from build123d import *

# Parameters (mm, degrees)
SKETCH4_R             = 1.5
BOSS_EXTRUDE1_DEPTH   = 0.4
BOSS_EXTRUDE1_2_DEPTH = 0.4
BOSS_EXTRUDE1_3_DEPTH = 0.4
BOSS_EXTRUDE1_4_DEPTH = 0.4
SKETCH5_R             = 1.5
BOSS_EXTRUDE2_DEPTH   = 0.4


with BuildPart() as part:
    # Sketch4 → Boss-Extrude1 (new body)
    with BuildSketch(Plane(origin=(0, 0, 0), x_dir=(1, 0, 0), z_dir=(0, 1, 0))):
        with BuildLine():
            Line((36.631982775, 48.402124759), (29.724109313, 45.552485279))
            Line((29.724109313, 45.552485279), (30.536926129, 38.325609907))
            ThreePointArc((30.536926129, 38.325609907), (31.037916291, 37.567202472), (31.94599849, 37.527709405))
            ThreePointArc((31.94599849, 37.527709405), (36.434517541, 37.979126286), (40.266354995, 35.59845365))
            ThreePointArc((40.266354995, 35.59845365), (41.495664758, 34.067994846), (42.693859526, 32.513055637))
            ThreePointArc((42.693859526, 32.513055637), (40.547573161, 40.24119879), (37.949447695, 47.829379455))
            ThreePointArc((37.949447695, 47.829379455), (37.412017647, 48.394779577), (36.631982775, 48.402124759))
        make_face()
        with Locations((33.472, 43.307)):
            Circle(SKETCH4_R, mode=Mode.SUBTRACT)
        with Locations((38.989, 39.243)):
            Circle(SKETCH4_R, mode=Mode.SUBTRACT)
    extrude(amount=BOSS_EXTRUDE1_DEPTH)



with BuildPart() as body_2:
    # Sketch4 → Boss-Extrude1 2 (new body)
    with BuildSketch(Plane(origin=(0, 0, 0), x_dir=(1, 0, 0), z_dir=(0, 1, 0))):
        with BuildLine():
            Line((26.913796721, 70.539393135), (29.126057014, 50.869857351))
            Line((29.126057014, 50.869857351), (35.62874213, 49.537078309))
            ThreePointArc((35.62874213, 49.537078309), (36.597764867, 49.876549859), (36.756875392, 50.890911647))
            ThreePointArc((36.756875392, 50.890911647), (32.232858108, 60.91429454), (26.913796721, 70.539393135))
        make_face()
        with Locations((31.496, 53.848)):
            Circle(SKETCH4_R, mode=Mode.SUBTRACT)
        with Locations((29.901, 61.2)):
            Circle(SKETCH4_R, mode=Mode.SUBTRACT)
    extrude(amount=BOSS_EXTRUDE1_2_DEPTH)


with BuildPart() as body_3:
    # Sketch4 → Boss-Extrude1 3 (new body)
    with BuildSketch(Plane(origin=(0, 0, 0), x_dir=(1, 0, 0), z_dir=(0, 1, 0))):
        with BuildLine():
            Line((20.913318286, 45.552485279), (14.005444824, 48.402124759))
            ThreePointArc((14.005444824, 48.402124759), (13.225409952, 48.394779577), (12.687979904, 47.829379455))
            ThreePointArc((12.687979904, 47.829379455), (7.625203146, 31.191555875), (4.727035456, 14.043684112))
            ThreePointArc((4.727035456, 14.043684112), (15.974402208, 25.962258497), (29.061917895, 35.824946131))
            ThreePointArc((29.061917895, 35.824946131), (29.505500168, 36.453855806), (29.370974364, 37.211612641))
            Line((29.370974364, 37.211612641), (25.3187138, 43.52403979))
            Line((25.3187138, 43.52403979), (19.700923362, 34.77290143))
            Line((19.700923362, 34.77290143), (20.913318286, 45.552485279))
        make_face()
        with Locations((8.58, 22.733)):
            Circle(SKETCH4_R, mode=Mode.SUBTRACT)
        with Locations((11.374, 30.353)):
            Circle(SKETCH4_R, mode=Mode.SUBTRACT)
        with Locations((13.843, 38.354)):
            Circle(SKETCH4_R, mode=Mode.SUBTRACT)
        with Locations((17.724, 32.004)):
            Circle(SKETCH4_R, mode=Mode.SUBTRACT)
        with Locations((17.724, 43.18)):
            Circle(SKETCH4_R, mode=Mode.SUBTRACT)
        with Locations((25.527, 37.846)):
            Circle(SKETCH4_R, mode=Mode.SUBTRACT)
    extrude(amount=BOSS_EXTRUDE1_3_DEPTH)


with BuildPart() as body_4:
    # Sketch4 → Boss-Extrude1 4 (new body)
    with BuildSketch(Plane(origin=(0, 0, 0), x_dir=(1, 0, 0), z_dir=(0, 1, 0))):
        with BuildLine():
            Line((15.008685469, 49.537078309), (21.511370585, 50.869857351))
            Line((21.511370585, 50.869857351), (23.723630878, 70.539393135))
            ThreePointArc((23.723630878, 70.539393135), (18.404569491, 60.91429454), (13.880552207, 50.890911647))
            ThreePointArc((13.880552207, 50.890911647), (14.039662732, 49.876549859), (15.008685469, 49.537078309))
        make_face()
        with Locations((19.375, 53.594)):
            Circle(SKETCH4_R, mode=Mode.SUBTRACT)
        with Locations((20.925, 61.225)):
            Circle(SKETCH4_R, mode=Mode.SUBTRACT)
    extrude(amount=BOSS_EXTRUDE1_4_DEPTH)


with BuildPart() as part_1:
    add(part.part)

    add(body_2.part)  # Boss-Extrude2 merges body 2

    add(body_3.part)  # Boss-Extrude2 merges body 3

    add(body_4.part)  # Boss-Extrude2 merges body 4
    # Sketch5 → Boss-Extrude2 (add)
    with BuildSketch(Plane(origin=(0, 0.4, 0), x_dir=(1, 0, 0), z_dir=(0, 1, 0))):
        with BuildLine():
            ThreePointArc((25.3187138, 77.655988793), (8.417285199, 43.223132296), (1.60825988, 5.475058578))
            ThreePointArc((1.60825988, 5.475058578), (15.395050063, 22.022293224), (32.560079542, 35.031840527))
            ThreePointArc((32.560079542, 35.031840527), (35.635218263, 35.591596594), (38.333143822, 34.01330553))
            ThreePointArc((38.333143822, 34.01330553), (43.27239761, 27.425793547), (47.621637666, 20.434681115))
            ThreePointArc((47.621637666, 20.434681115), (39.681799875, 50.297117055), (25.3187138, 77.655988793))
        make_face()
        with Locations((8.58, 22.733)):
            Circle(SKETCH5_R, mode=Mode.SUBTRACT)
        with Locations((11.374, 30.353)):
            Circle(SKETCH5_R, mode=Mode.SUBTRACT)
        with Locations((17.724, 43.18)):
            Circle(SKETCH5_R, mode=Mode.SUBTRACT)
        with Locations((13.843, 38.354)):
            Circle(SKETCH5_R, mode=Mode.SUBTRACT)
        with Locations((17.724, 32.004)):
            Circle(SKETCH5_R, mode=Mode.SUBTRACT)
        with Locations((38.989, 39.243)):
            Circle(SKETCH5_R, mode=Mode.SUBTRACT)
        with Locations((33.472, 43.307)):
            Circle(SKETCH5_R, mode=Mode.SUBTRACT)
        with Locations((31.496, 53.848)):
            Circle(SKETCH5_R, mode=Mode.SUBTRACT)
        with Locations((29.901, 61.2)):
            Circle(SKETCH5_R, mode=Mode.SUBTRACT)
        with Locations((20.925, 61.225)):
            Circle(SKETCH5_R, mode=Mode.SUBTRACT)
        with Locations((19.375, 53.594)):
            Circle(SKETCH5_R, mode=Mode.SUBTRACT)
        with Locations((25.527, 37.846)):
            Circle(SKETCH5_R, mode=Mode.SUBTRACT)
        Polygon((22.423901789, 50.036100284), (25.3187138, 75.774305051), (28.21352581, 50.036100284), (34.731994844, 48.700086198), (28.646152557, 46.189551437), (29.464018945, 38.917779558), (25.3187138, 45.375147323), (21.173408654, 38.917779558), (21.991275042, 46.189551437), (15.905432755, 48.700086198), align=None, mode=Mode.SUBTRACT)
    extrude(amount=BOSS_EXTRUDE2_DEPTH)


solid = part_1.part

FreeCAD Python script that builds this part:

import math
import FreeCAD as App
import Part
import Sketcher
from FreeCAD import Vector


def add_polygon(sketch, points):
    """Adds a closed chain of lines whose ends are joined by coincident constraints."""
    first, n = sketch.GeometryCount, len(points)
    for a, b in zip(points, points[1:] + points[:1]):
        sketch.addGeometry(Part.LineSegment(App.Vector(*a, 0), App.Vector(*b, 0)), False)
    for i in range(n):
        sketch.addConstraint(Sketcher.Constraint("Coincident", first + i, 2, first + (i + 1) % n, 1))

doc = App.newDocument("Part")
params = doc.addObject("Spreadsheet::Sheet", "Params")
for row, (alias, value) in enumerate([
    ("sketch1_diameter", "3 mm"),
    ("sketch1_radius", "1 mm"),
    ("sketch1_radius2", "7 mm"),
    ("sketch1_radius3", "136 mm"),
    ("pad1_length", "0.4 mm"),
    ("sketch2_diameter", "3 mm"),
    ("sketch2_radius", "1 mm"),
    ("sketch2_radius2", "136 mm"),
    ("pad2_length", "0.4 mm"),
    ("sketch3_diameter", "3 mm"),
    ("sketch3_radius", "1 mm"),
    ("sketch3_radius2", "136 mm"),
    ("pad3_length", "0.4 mm"),
    ("sketch4_diameter", "3 mm"),
    ("sketch4_radius", "136 mm"),
    ("sketch4_radius2", "1 mm"),
    ("pad4_length", "0.4 mm"),
    ("sketch5_diameter", "3 mm"),
    ("sketch5_diameter2", "3 mm"),
    ("sketch5_diameter3", "3 mm"),
    ("sketch5_diameter4", "3 mm"),
    ("sketch5_diameter5", "3 mm"),
    ("pad5_length", "0.4 mm"),
], start=1):
    params.set(f"A{row}", alias)
    params.set(f"B{row}", "=" + value)
    params.setAlias(f"B{row}", alias)

body = doc.addObject("PartDesign::Body", "Body")

sketch1 = doc.addObject("Sketcher::SketchObject", "Sketch")
body.addObject(sketch1)
sketch1.AttachmentSupport = (doc.XZ_Plane, [""])
sketch1.MapMode = "FlatFace"
sketch1.addGeometry([
    Part.LineSegment(Vector(36.631983, -48.402125, 0), Vector(29.724109, -45.552485, 0)),
    Part.LineSegment(Vector(29.724109, -45.552485, 0), Vector(30.536926, -38.32561, 0)),
    Part.ArcOfCircle(Part.Circle(Vector(31.530661, -38.437377, 0), Vector(0, 0, 1), 1), math.radians(65.459403), math.radians(173.582831)),
    Part.ArcOfCircle(Part.Circle(Vector(34.853364, -31.160039, 0), Vector(0, 0, 1), 7), math.radians(-114.540597), math.radians(-39.350245)),
    Part.ArcOfCircle(Part.Circle(Vector(-35, 26.116647, 0), Vector(0, 0, 1), 97.333334), math.radians(-39.350246), math.radians(-37.039104)),
    Part.ArcOfCircle(Part.Circle(Vector(-89.362573, 0, 0), Vector(0, 0, 1), 136), math.radians(-20.590511), math.radians(-13.831456)),
    Part.ArcOfCircle(Part.Circle(Vector(37.01333, -47.477693, 0), Vector(0, 0, 1), 1), math.radians(-112.417152), math.radians(-20.590511)),
    Part.Circle(Vector(38.989, -39.243, 0), Vector(0, 0, 1), 1.5),
    Part.Circle(Vector(33.472, -43.307, 0), Vector(0, 0, 1), 1.5),
], False)
sketch1.addConstraint([
    Sketcher.Constraint("Coincident", 0, 2, 1, 1),
    Sketcher.Constraint("Tangent", 1, 2, 2, 2),
    Sketcher.Constraint("Tangent", 2, 1, 3, 1),
    Sketcher.Constraint("Tangent", 3, 2, 4, 1),
    Sketcher.Constraint("Coincident", 4, 2, 5, 2),
    Sketcher.Constraint("Tangent", 5, 1, 6, 2),
    Sketcher.Constraint("Tangent", 6, 1, 0, 1),
    Sketcher.Constraint("Equal", 2, 6),
    Sketcher.Constraint("Equal", 7, 8),
    Sketcher.Constraint("PointOnObject", 5, 3, -1),
    Sketcher.Constraint("Diameter", 7, 3.0),
    Sketcher.Constraint("Radius", 2, 1.0),
    Sketcher.Constraint("Radius", 3, 7.0),
    Sketcher.Constraint("Radius", 5, 136.0),
    Sketcher.Constraint("DistanceX", 4, 3, -1, 1, 35.0),
    Sketcher.Constraint("DistanceX", -1, 1, 7, 3, 38.989),
    Sketcher.Constraint("DistanceY", 7, 3, -1, 1, 39.243),
    Sketcher.Constraint("DistanceX", -1, 1, 8, 3, 33.472),
    Sketcher.Constraint("DistanceY", 8, 3, -1, 1, 43.307),
    Sketcher.Constraint("DistanceX", -1, 1, 2, 1, 31.945998),
    Sketcher.Constraint("Radius", 4, 97.333334),
    Sketcher.Constraint("DistanceY", 1, 2, 2, 1, 0.797901),
    Sketcher.Constraint("DistanceY", 3, 2, 4, 2, 3.085398),
    Sketcher.Constraint("DistanceX", 2, 3, 4, 2, 11.163199),
    Sketcher.Constraint("Distance", 0, 7.472561),
    Sketcher.Constraint("Distance", 1, 7.272441),
    Sketcher.Constraint("DistanceY", 3, 3, -1, 1, 31.160039),
])
sketch1.setExpression("Constraints[10]", "Params.sketch1_diameter")
sketch1.setExpression("Constraints[11]", "Params.sketch1_radius")
sketch1.setExpression("Constraints[12]", "Params.sketch1_radius2")
sketch1.setExpression("Constraints[13]", "Params.sketch1_radius3")
pad1 = doc.addObject("PartDesign::Pad", "Pad")
body.addObject(pad1)
pad1.Profile = sketch1
pad1.setExpression("Length", "Params.pad1_length")
pad1.Reversed = True
body2 = doc.addObject("PartDesign::Body", "Body001")

sketch2 = doc.addObject("Sketcher::SketchObject", "Sketch001")
body2.addObject(sketch2)
sketch2.AttachmentSupport = (doc.getObject("XZ_Plane001"), [""])
sketch2.MapMode = "FlatFace"
sketch2.addGeometry([
    Part.LineSegment(Vector(26.9, -70.5, 0), Vector(29.1, -50.9, 0)),
    Part.LineSegment(Vector(29.1, -50.9, 0), Vector(35.6, -49.5, 0)),
    Part.ArcOfCircle(Part.Circle(Vector(35.8, -50.5, 0), Vector(0, 0, 1), 1), math.radians(-22), math.radians(102)),
    Part.ArcOfCircle(Part.Circle(Vector(-89.4, 0, 0), Vector(0, 0, 1), 136), math.radians(-31.24), math.radians(-21.97)),
    Part.Circle(Vector(31.5, -53.8, 0), Vector(0, 0, 1), 1.5),
    Part.Circle(Vector(29.9, -61.2, 0), Vector(0, 0, 1), 1.5),
], False)
sketch2.addConstraint([
    Sketcher.Constraint("Coincident", 0, 2, 1, 1),
    Sketcher.Constraint("Tangent", 1, 2, 2, 2),
    Sketcher.Constraint("Tangent", 2, 1, 3, 2),
    Sketcher.Constraint("Coincident", 3, 1, 0, 1),
    Sketcher.Constraint("Equal", 4, 5),
    Sketcher.Constraint("PointOnObject", 3, 3, -1),
    Sketcher.Constraint("Diameter", 4, 3.0),
    Sketcher.Constraint("Radius", 2, 1.0),
    Sketcher.Constraint("Radius", 3, 136.0),
    Sketcher.Constraint("DistanceY", 5, 3, -1, 1, 61.2),
    Sketcher.Constraint("DistanceX", -1, 1, 4, 3, 31.496),
    Sketcher.Constraint("DistanceY", 4, 3, -1, 1, 53.848),
    Sketcher.Constraint("DistanceX", -1, 1, 5, 3, 29.901),
    Sketcher.Constraint("DistanceX", 3, 3, 2, 3, 125.192099),
    Sketcher.Constraint("DistanceY", 1, 2, -1, 1, 49.537078),
    Sketcher.Constraint("DistanceX", 0, 2, 2, 3, 6.703469),
    Sketcher.Constraint("DistanceX", 3, 1, 0, 2, 2.21226),
    Sketcher.Constraint("DistanceX", -1, 1, 2, 3, 35.829527),
])
sketch2.setExpression("Constraints[6]", "Params.sketch2_diameter")
sketch2.setExpression("Constraints[7]", "Params.sketch2_radius")
sketch2.setExpression("Constraints[8]", "Params.sketch2_radius2")
pad2 = doc.addObject("PartDesign::Pad", "Pad001")
body2.addObject(pad2)
pad2.Profile = sketch2
pad2.setExpression("Length", "Params.pad2_length")
pad2.Reversed = True
body3 = doc.addObject("PartDesign::Body", "Body002")

sketch3 = doc.addObject("Sketcher::SketchObject", "Sketch002")
body3.addObject(sketch3)
sketch3.AttachmentSupport = (doc.getObject("XZ_Plane002"), [""])
sketch3.MapMode = "FlatFace"
sketch3.addGeometry([
    Part.LineSegment(Vector(20.9, -45.6, 0), Vector(14, -48.4, 0)),
    Part.ArcOfCircle(Part.Circle(Vector(13.6, -47.5, 0), Vector(0, 0, 1), 1), math.radians(-159), math.radians(-68)),
    Part.ArcOfCircle(Part.Circle(Vector(140, 0, 0), Vector(0, 0, 1), 136), math.radians(-174.07), math.radians(-159.41)),
    Part.ArcOfCircle(Part.Circle(Vector(80.9, 46.6, 0), Vector(0, 0, 1), 97.3), math.radians(-141.49), math.radians(-122.17)),
    Part.ArcOfCircle(Part.Circle(Vector(28.5, -36.7, 0), Vector(0, 0, 1), 1), math.radians(-33), math.radians(58)),
    Part.LineSegment(Vector(29.4, -37.2, 0), Vector(25.3, -43.5, 0)),
    Part.LineSegment(Vector(25.3, -43.5, 0), Vector(19.7, -34.8, 0)),
    Part.LineSegment(Vector(19.7, -34.8, 0), Vector(20.9, -45.6, 0)),
    Part.Circle(Vector(8.6, -22.7, 0), Vector(0, 0, 1), 1.5),
    Part.Circle(Vector(11.4, -30.4, 0), Vector(0, 0, 1), 1.5),
    Part.Circle(Vector(17.7, -32, 0), Vector(0, 0, 1), 1.5),
    Part.Circle(Vector(13.8, -38.4, 0), Vector(0, 0, 1), 1.5),
    Part.Circle(Vector(25.5, -37.8, 0), Vector(0, 0, 1), 1.5),
    Part.Circle(Vector(17.7, -43.2, 0), Vector(0, 0, 1), 1.5),
], False)
sketch3.addConstraint([
    Sketcher.Constraint("Tangent", 0, 2, 1, 2),
    Sketcher.Constraint("Tangent", 1, 1, 2, 2),
    Sketcher.Constraint("Coincident", 2, 1, 3, 1),
    Sketcher.Constraint("Tangent", 3, 2, 4, 2),
    Sketcher.Constraint("Tangent", 4, 1, 5, 1),
    Sketcher.Constraint("Coincident", 5, 2, 6, 1),
    Sketcher.Constraint("Coincident", 6, 2, 7, 1),
    Sketcher.Constraint("Coincident", 7, 2, 0, 1),
    Sketcher.Constraint("Equal", 1, 4),
    Sketcher.Constraint("Equal", 8, 9),
    Sketcher.Constraint("Equal", 9, 10),
    Sketcher.Constraint("Equal", 10, 11),
    Sketcher.Constraint("Equal", 11, 12),
    Sketcher.Constraint("Equal", 12, 13),
    Sketcher.Constraint("PointOnObject", 2, 3, -1),
    Sketcher.Constraint("Vertical", 10, 3, 13, 3),
    Sketcher.Constraint("Diameter", 8, 3.0),
    Sketcher.Constraint("Radius", 1, 1.0),
    Sketcher.Constraint("Radius", 2, 136.0),
    Sketcher.Constraint("DistanceX", -1, 1, 2, 3, 140.0),
    Sketcher.Constraint("DistanceX", -1, 1, 8, 3, 8.58),
    Sketcher.Constraint("DistanceY", 13, 3, -1, 1, 43.18),
    Sketcher.Constraint("DistanceY", 9, 3, 8, 3, 7.62),
    Sketcher.Constraint("DistanceX", 9, 3, 10, 3, 6.35),
    Sketcher.Constraint("DistanceY", 11, 3, 10, 3, 6.35),
    Sketcher.Constraint("DistanceY", 8, 3, -1, 1, 22.733),
    Sketcher.Constraint("DistanceX", -1, 1, 9, 3, 11.374),
    Sketcher.Constraint("DistanceY", 10, 3, -1, 1, 32.004),
    Sketcher.Constraint("DistanceX", -1, 1, 11, 3, 13.843),
    Sketcher.Constraint("DistanceX", -1, 1, 12, 3, 25.527),
    Sketcher.Constraint("DistanceY", 12, 3, -1, 1, 37.846),
    Sketcher.Constraint("Radius", 3, 97.333333),
    Sketcher.Constraint("DistanceY", 6, 2, -1, 1, 34.772901),
    Sketcher.Constraint("Distance", 0, 7.472561),
    Sketcher.Constraint("Distance", 5, 7.50117),
    Sketcher.Constraint("Distance", 7, 10.847549),
    Sketcher.Constraint("DistanceX", -1, 1, 3, 3, 80.88892),
    Sketcher.Constraint("DistanceX", -1, 1, 4, 3, 28.529449),
    Sketcher.Constraint("DistanceX", -1, 1, 1, 1, 12.68798),
    Sketcher.Constraint("DistanceY", 5, 2, -1, 1, 43.52404),
    Sketcher.Constraint("DistanceX", -1, 1, 7, 2, 20.913318),
    Sketcher.Constraint("DistanceX", 5, 2, 4, 1, 4.052261),
])
sketch3.setExpression("Constraints[16]", "Params.sketch3_diameter")
sketch3.setExpression("Constraints[17]", "Params.sketch3_radius")
sketch3.setExpression("Constraints[18]", "Params.sketch3_radius2")
pad3 = doc.addObject("PartDesign::Pad", "Pad002")
body3.addObject(pad3)
pad3.Profile = sketch3
pad3.setExpression("Length", "Params.pad3_length")
pad3.Reversed = True
body4 = doc.addObject("PartDesign::Body", "Body003")

sketch4 = doc.addObject("Sketcher::SketchObject", "Sketch003")
body4.addObject(sketch4)
sketch4.AttachmentSupport = (doc.getObject("XZ_Plane003"), [""])
sketch4.MapMode = "FlatFace"
sketch4.addGeometry([
    Part.LineSegment(Vector(15, -49.5, 0), Vector(21.5, -50.9, 0)),
    Part.LineSegment(Vector(21.5, -50.9, 0), Vector(23.7, -70.5, 0)),
    Part.ArcOfCircle(Part.Circle(Vector(140, 0, 0), Vector(0, 0, 1), 136), math.radians(-158.03), math.radians(-148.76)),
    Part.ArcOfCircle(Part.Circle(Vector(14.8, -50.5, 0), Vector(0, 0, 1), 1), math.radians(78), math.radians(202)),
    Part.Circle(Vector(19.4, -53.6, 0), Vector(0, 0, 1), 1.5),
    Part.Circle(Vector(20.9, -61.2, 0), Vector(0, 0, 1), 1.5),
], False)
sketch4.addConstraint([
    Sketcher.Constraint("Coincident", 0, 2, 1, 1),
    Sketcher.Constraint("Coincident", 1, 2, 2, 2),
    Sketcher.Constraint("Tangent", 2, 1, 3, 2),
    Sketcher.Constraint("Tangent", 3, 1, 0, 1),
    Sketcher.Constraint("Equal", 4, 5),
    Sketcher.Constraint("PointOnObject", 2, 3, -1),
    Sketcher.Constraint("Diameter", 4, 3.0),
    Sketcher.Constraint("Radius", 2, 136.0),
    Sketcher.Constraint("Radius", 3, 1.0),
    Sketcher.Constraint("DistanceX", -1, 1, 2, 3, 140.0),
    Sketcher.Constraint("DistanceX", 4, 3, 5, 3, 1.55),
    Sketcher.Constraint("DistanceX", -1, 1, 4, 3, 19.375),
    Sketcher.Constraint("DistanceY", 4, 3, -1, 1, 53.594),
    Sketcher.Constraint("DistanceY", 5, 3, -1, 1, 61.225),
    Sketcher.Constraint("DistanceX", -1, 1, 3, 3, 14.807901),
    Sketcher.Constraint("DistanceX", -1, 1, 0, 2, 21.511371),
    Sketcher.Constraint("DistanceX", -1, 1, 1, 2, 23.723631),
    Sketcher.Constraint("DistanceY", 3, 1, -1, 1, 49.537078),
])
sketch4.setExpression("Constraints[6]", "Params.sketch4_diameter")
sketch4.setExpression("Constraints[7]", "Params.sketch4_radius")
sketch4.setExpression("Constraints[8]", "Params.sketch4_radius2")
pad4 = doc.addObject("PartDesign::Pad", "Pad003")
body4.addObject(pad4)
pad4.Profile = sketch4
pad4.setExpression("Length", "Params.pad4_length")
pad4.Reversed = True
body.AllowCompound = True
doc.recompute()

boolean = doc.addObject("PartDesign::Boolean", "Boolean")
body.addObject(boolean)
boolean.Type = "Fuse"
boolean.addObjects([body2])
doc.recompute()

boolean2 = doc.addObject("PartDesign::Boolean", "Boolean001")
body.addObject(boolean2)
boolean2.Type = "Fuse"
boolean2.addObjects([body3])
doc.recompute()

boolean3 = doc.addObject("PartDesign::Boolean", "Boolean002")
body.addObject(boolean3)
boolean3.Type = "Fuse"
boolean3.addObjects([body4])

sketch5 = doc.addObject("Sketcher::SketchObject", "Sketch004")
body.addObject(sketch5)
sketch5.AttachmentSupport = (doc.XZ_Plane, [""])
sketch5.MapMode = "FlatFace"
sketch5.AttachmentOffset = App.Placement(Vector(0, 0, -0.4), App.Rotation())
sketch5.addGeometry(Part.ArcOfCircle(Part.Circle(Vector(140, 0, 0), Vector(0, 0, 1), 138.5), math.radians(-177.734444), math.radians(-145.896259)), False)
sketch5.addGeometry(Part.ArcOfCircle(Part.Circle(Vector(80.88892, 46.562793, 0), Vector(0, 0, 1), 94.833333), math.radians(-146.720102), math.radians(-120.638435)), False)
sketch5.addGeometry(Part.ArcOfCircle(Part.Circle(Vector(34.853364, -31.160039, 0), Vector(0, 0, 1), 4.5), math.radians(-120.638435), math.radians(-39.350245)), False)
sketch5.addGeometry(Part.ArcOfCircle(Part.Circle(Vector(-35, 26.116646, 0), Vector(0, 0, 1), 94.833333), math.radians(-39.350246), math.radians(-29.398119)), False)
sketch5.addGeometry(Part.ArcOfCircle(Part.Circle(Vector(-89.362572, 0, 0), Vector(0, 0, 1), 138.5), math.radians(-34.103741), math.radians(-8.484556)), False)
sketch5.addGeometry(Part.Circle(Vector(8.58, -22.733, 0), Vector(0, 0, 1), 1.5), False)
sketch5.addGeometry(Part.Circle(Vector(11.374, -30.353, 0), Vector(0, 0, 1), 1.5), False)
sketch5.addGeometry(Part.Circle(Vector(17.724, -32.004, 0), Vector(0, 0, 1), 1.5), False)
sketch5.addGeometry(Part.Circle(Vector(13.843, -38.354, 0), Vector(0, 0, 1), 1.5), False)
sketch5.addGeometry(Part.Circle(Vector(17.724, -43.18, 0), Vector(0, 0, 1), 1.5), False)
sketch5.addGeometry(Part.Circle(Vector(25.527, -37.846, 0), Vector(0, 0, 1), 1.5), False)
sketch5.addGeometry(Part.Circle(Vector(38.989, -39.243, 0), Vector(0, 0, 1), 1.5), False)
sketch5.addGeometry(Part.Circle(Vector(33.472, -43.307, 0), Vector(0, 0, 1), 1.5), False)
sketch5.addGeometry(Part.Circle(Vector(19.375, -53.594, 0), Vector(0, 0, 1), 1.5), False)
sketch5.addGeometry(Part.Circle(Vector(20.925, -61.225, 0), Vector(0, 0, 1), 1.5), False)
sketch5.addGeometry(Part.Circle(Vector(31.496, -53.848, 0), Vector(0, 0, 1), 1.5), False)
add_polygon(sketch5, [(15.905433, -48.700086), (22.423902, -50.0361), (25.318714, -75.774305), (28.213526, -50.0361), (34.731995, -48.700086), (28.646153, -46.189551), (29.464019, -38.91778), (25.318714, -45.375147), (21.173409, -38.91778), (21.991275, -46.189551)])
sketch5.addGeometry(Part.Circle(Vector(29.901, -61.2, 0), Vector(0, 0, 1), 1.5), False)
sketch5.addConstraint([
    Sketcher.Constraint("Coincident", 0, 1, 1, 1),
    Sketcher.Constraint("Coincident", 1, 2, 2, 1),
    Sketcher.Constraint("Coincident", 2, 2, 3, 1),
    Sketcher.Constraint("Coincident", 3, 2, 4, 2),
    Sketcher.Constraint("Coincident", 4, 1, 0, 2),
    Sketcher.Constraint("PointOnObject", 0, 3, -1),
    Sketcher.Constraint("PointOnObject", 4, 3, -1),
    Sketcher.Constraint("Diameter", 5, 3.0),
    Sketcher.Constraint("Diameter", 6, 3.0),
    Sketcher.Constraint("Diameter", 7, 3.0),
    Sketcher.Constraint("Diameter", 8, 3.0),
    Sketcher.Constraint("Diameter", 9, 3.0),
    Sketcher.Constraint("Diameter", 10, 3.0),
    Sketcher.Constraint("Diameter", 11, 3.0),
    Sketcher.Constraint("Diameter", 12, 3.0),
    Sketcher.Constraint("Diameter", 13, 3.0),
    Sketcher.Constraint("Diameter", 14, 3.0),
    Sketcher.Constraint("Diameter", 15, 3.0),
    Sketcher.Constraint("Diameter", 26, 3.0),
    Sketcher.Constraint("Radius", 0, 138.5),
    Sketcher.Constraint("Radius", 2, 4.5),
    Sketcher.Constraint("Radius", 4, 138.5),
    Sketcher.Constraint("DistanceX", -1, 1, 0, 3, 140.0),
    Sketcher.Constraint("DistanceX", 3, 3, -1, 1, 35.0),
    Sketcher.Constraint("DistanceY", 26, 3, -1, 1, 61.2),
    Sketcher.Constraint("DistanceX", -1, 1, 5, 3, 8.58),
    Sketcher.Constraint("DistanceY", 9, 3, -1, 1, 43.18),
    Sketcher.Constraint("DistanceY", 6, 3, 5, 3, 7.62),
    Sketcher.Constraint("DistanceX", 6, 3, 7, 3, 6.35),
    Sketcher.Constraint("DistanceY", 8, 3, 7, 3, 6.35),
    Sketcher.Constraint("DistanceX", 6, 3, 9, 3, 6.35),
    Sketcher.Constraint("DistanceY", 13, 3, 8, 3, 15.24),
    Sketcher.Constraint("DistanceX", 13, 3, 14, 3, 1.55),
    Sketcher.Constraint("DistanceY", 5, 3, -1, 1, 22.733),
    Sketcher.Constraint("DistanceX", -1, 1, 6, 3, 11.374),
    Sketcher.Constraint("DistanceY", 7, 3, -1, 1, 32.004),
    Sketcher.Constraint("DistanceX", -1, 1, 8, 3, 13.843),
    Sketcher.Constraint("DistanceX", -1, 1, 10, 3, 25.527),
    Sketcher.Constraint("DistanceY", 10, 3, -1, 1, 37.846),
    Sketcher.Constraint("DistanceX", -1, 1, 11, 3, 38.989),
    Sketcher.Constraint("DistanceY", 11, 3, -1, 1, 39.243),
    Sketcher.Constraint("DistanceX", -1, 1, 12, 3, 33.472),
    Sketcher.Constraint("DistanceY", 12, 3, -1, 1, 43.307),
    Sketcher.Constraint("DistanceX", -1, 1, 13, 3, 19.375),
    Sketcher.Constraint("DistanceY", 14, 3, -1, 1, 61.225),
    Sketcher.Constraint("DistanceX", -1, 1, 15, 3, 31.496),
    Sketcher.Constraint("DistanceY", 15, 3, -1, 1, 53.848),
    Sketcher.Constraint("DistanceX", -1, 1, 26, 3, 29.901),
    Sketcher.Constraint("Radius", 1, 94.833333),
    Sketcher.Constraint("Radius", 3, 94.833333),
    Sketcher.Constraint("DistanceX", -1, 1, 16, 2, 22.423902),
    Sketcher.Constraint("DistanceY", 16, 2, -1, 1, 50.0361),
    Sketcher.Constraint("DistanceY", 18, 2, -1, 1, 50.0361),
    Sketcher.Constraint("DistanceY", 1, 2, 2, 3, 3.871802),
    Sketcher.Constraint("Distance", 21, 7.317621),
    Sketcher.Constraint("Distance", 24, 7.317621),
    Sketcher.Constraint("DistanceX", -1, 1, 1, 3, 80.88892),
    Sketcher.Constraint("DistanceY", 2, 3, -1, 1, 31.160039),
    Sketcher.Constraint("DistanceX", -1, 1, 0, 1, 1.60826),
    Sketcher.Constraint("DistanceY", 3, 2, -1, 1, 20.434681),
    Sketcher.Constraint("DistanceY", 20, 2, -1, 1, 46.189551),
    Sketcher.Constraint("DistanceX", -1, 1, 21, 2, 29.464019),
    Sketcher.Constraint("DistanceY", 21, 2, -1, 1, 38.91778),
    Sketcher.Constraint("DistanceX", -1, 1, 23, 2, 21.173409),
    Sketcher.Constraint("DistanceY", 23, 2, -1, 1, 38.91778),
    Sketcher.Constraint("DistanceY", 24, 2, -1, 1, 46.189551),
    Sketcher.Constraint("DistanceX", 2, 3, 2, 2, 3.47978),
    Sketcher.Constraint("DistanceX", 18, 2, 19, 2, 6.518469),
    Sketcher.Constraint("DistanceX", 22, 2, 20, 2, 3.327439),
    Sketcher.Constraint("DistanceX", 24, 2, 18, 2, 6.222251),
    Sketcher.Constraint("DistanceX", 25, 2, 16, 2, 6.518469),
    Sketcher.Constraint("DistanceY", 25, 2, 22, 2, 3.324939),
    Sketcher.Constraint("Distance", 16, 6.653974),
    Sketcher.Constraint("Distance", 17, 25.900485),
    Sketcher.Constraint("Distance", 18, 25.900485),
    Sketcher.Constraint("Distance", 19, 6.653974),
])
sketch5.setExpression("Constraints[17]", "Params.sketch5_diameter")
sketch5.setExpression("Constraints[18]", "Params.sketch5_diameter2")
sketch5.setExpression("Constraints[19]", "Params.sketch5_diameter3")
sketch5.setExpression("Constraints[20]", "Params.sketch5_diameter4")
sketch5.setExpression("Constraints[21]", "Params.sketch5_diameter5")
pad5 = doc.addObject("PartDesign::Pad", "Pad004")
body.addObject(pad5)
pad5.Profile = sketch5
pad5.setExpression("Length", "Params.pad5_length")
pad5.Reversed = True

doc.recompute()
